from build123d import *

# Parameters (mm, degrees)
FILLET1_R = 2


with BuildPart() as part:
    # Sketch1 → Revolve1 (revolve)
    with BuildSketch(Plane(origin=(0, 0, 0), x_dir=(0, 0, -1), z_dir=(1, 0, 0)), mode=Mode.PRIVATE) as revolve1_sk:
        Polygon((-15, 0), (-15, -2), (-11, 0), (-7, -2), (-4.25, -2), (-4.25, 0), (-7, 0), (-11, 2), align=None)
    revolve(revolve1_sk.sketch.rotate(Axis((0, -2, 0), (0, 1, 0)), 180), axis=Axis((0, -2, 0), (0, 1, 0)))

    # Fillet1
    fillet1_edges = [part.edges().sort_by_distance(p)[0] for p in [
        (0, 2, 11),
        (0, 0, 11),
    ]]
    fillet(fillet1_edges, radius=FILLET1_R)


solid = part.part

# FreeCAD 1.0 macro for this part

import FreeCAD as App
import Part
import Sketcher
from FreeCAD import Vector


def edges_at(feature, points):
    """Names of the edges that pass closest to the given points."""
    edges = feature.Shape.Edges
    near = lambda p: min(range(len(edges)), key=lambda i: edges[i].distToShape(Part.Vertex(*p))[0])
    return sorted({f"Edge{near(p) + 1}" for p in points})

doc = App.newDocument("Part")
body = doc.addObject("PartDesign::Body", "Body")

sketch1 = body.newObject("Sketcher::SketchObject", "Sketch")
sketch1.AttachmentSupport = (doc.getObject("YZ_Plane"), [""])
sketch1.MapMode = "FlatFace"
sketch1.addGeometry([
    Part.LineSegment(Vector(0, 15, 0), Vector(-2, 15, 0)),
    Part.LineSegment(Vector(-2, 15, 0), Vector(0, 11, 0)),
    Part.LineSegment(Vector(0, 11, 0), Vector(-2, 7, 0)),
    Part.LineSegment(Vector(-2, 7, 0), Vector(-2, 4.2, 0)),
    Part.LineSegment(Vector(-2, 4.2, 0), Vector(0, 4.2, 0)),
    Part.LineSegment(Vector(0, 4.2, 0), Vector(0, 7, 0)),
    Part.LineSegment(Vector(0, 7, 0), Vector(2, 11, 0)),
    Part.LineSegment(Vector(2, 11, 0), Vector(0, 15, 0)),
], False)
sketch1.addConstraint([
    Sketcher.Constraint("Coincident", 0, 2, 1, 1),
    Sketcher.Constraint("Coincident", 1, 2, 2, 1),
    Sketcher.Constraint("Coincident", 2, 2, 3, 1),
    Sketcher.Constraint("Coincident", 3, 2, 4, 1),
    Sketcher.Constraint("Coincident", 4, 2, 5, 1),
    Sketcher.Constraint("Coincident", 5, 2, 6, 1),
    Sketcher.Constraint("Coincident", 6, 2, 7, 1),
    Sketcher.Constraint("Coincident", 7, 2, 0, 1),
    Sketcher.Constraint("Horizontal", 0),
    Sketcher.Constraint("Vertical", 3),
    Sketcher.Constraint("Horizontal", 4),
    Sketcher.Constraint("Vertical", 5),
    Sketcher.Constraint("PointOnObject", 1, 2, -2),
    Sketcher.Constraint("PointOnObject", 4, 2, -2),
    Sketcher.Constraint("PointOnObject", 7, 2, -2),
    Sketcher.Constraint("Parallel", 2, 6),
    Sketcher.Constraint("Parallel", 1, 7),
    Sketcher.Constraint("Horizontal", 2, 2, 5, 2),
    Sketcher.Constraint("Horizontal", 1, 2, 6, 2),
    Sketcher.Constraint("Equal", 1, 2),
    Sketcher.Constraint("DistanceX", 0, 2, 0, 1, 2.0),
    Sketcher.Constraint("DistanceY", -1, 1, 0, 2, 15.0),
    Sketcher.Constraint("DistanceY", -1, 1, 1, 2, 11.0),
    Sketcher.Constraint("DistanceY", 3, 2, 3, 1, 2.75),
])
revolution = body.newObject("PartDesign::Revolution", "Revolution")
revolution.Profile = sketch1
revolution.ReferenceAxis = (sketch1, ["H_Axis"])
revolution.Angle = 360
doc.recompute()

fillet = body.newObject("PartDesign::Fillet", "Fillet")
fillet.Base = (revolution, edges_at(revolution, [(0, 2, 11), (0, 0, 11)]))
fillet.Radius = 2

doc.recompute()
